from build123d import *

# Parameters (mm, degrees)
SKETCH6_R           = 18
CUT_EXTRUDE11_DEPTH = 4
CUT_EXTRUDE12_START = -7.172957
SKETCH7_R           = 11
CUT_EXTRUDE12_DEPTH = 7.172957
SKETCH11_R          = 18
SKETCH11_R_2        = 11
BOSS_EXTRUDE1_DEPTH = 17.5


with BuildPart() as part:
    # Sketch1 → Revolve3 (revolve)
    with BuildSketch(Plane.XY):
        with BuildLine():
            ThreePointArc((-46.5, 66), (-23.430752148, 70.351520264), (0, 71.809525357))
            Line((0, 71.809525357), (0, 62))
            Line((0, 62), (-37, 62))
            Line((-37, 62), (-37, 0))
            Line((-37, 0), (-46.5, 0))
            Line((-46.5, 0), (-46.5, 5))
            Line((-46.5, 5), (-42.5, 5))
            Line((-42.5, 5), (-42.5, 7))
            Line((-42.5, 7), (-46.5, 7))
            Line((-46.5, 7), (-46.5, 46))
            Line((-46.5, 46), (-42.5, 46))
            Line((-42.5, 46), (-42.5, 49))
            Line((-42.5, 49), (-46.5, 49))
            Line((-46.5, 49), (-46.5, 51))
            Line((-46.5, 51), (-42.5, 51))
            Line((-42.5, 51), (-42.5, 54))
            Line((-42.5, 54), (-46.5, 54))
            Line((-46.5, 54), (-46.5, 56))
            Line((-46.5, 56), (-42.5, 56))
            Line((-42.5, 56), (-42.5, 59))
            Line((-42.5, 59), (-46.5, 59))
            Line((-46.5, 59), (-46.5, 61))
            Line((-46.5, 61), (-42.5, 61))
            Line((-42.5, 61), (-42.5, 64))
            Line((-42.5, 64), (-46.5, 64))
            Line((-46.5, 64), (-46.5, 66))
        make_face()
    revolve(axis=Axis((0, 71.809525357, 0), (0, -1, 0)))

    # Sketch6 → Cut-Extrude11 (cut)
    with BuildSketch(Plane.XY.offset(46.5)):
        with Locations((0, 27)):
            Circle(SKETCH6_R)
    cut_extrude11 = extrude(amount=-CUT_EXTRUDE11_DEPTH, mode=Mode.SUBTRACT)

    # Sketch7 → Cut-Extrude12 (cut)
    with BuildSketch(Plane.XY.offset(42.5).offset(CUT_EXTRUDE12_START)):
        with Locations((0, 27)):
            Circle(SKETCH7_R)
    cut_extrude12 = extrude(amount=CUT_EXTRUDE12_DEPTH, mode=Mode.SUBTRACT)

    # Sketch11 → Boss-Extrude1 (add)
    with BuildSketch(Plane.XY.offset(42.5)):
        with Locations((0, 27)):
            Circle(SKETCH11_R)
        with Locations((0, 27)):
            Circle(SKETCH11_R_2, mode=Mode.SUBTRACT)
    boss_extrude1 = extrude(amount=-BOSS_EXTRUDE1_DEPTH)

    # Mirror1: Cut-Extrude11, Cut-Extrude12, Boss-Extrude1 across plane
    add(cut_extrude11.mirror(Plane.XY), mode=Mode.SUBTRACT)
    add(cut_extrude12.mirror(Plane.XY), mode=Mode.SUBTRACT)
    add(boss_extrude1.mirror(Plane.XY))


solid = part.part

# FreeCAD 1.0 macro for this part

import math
import FreeCAD as App
import Part
import Sketcher
from FreeCAD import Vector
Q = App.Units.Quantity

doc = App.newDocument("Part")
body = doc.addObject("PartDesign::Body", "Body")

# Sketch on XY plane
sketch1 = body.newObject("Sketcher::SketchObject", "Sketch")
sketch1.AttachmentSupport = (doc.getObject("XY_Plane"), [""])
sketch1.MapMode = "FlatFace"
sketch1.addGeometry([
    Part.ArcOfCircle(Part.Circle(Vector(0, -117.190475, 0), Vector(0, 0, 1), 189), math.radians(90), math.radians(104.242815)),  # 0
    Part.LineSegment(Vector(-46.5, 66, 0), Vector(-46.5, 64, 0)),  # 1
    Part.LineSegment(Vector(-46.5, 64, 0), Vector(-42.5, 64, 0)),  # 2
    Part.LineSegment(Vector(-42.5, 64, 0), Vector(-42.5, 61, 0)),  # 3
    Part.LineSegment(Vector(-42.5, 61, 0), Vector(-46.5, 61, 0)),  # 4
    Part.LineSegment(Vector(-46.5, 61, 0), Vector(-46.5, 59, 0)),  # 5
    Part.LineSegment(Vector(-46.5, 59, 0), Vector(-42.5, 59, 0)),  # 6
    Part.LineSegment(Vector(-42.5, 59, 0), Vector(-42.5, 56, 0)),  # 7
    Part.LineSegment(Vector(-42.5, 56, 0), Vector(-46.5, 56, 0)),  # 8
    Part.LineSegment(Vector(-46.5, 56, 0), Vector(-46.5, 54, 0)),  # 9
    Part.LineSegment(Vector(-46.5, 54, 0), Vector(-42.5, 54, 0)),  # 10
    Part.LineSegment(Vector(-42.5, 54, 0), Vector(-42.5, 51, 0)),  # 11
    Part.LineSegment(Vector(-42.5, 51, 0), Vector(-46.5, 51, 0)),  # 12
    Part.LineSegment(Vector(-46.5, 51, 0), Vector(-46.5, 49, 0)),  # 13
    Part.LineSegment(Vector(-46.5, 49, 0), Vector(-42.5, 49, 0)),  # 14
    Part.LineSegment(Vector(-42.5, 49, 0), Vector(-42.5, 46, 0)),  # 15
    Part.LineSegment(Vector(-42.5, 46, 0), Vector(-46.5, 46, 0)),  # 16
    Part.LineSegment(Vector(-46.5, 46, 0), Vector(-46.5, 7, 0)),  # 17
    Part.LineSegment(Vector(-46.5, 7, 0), Vector(-42.5, 7, 0)),  # 18
    Part.LineSegment(Vector(-42.5, 7, 0), Vector(-42.5, 5, 0)),  # 19
    Part.LineSegment(Vector(-42.5, 5, 0), Vector(-46.5, 5, 0)),  # 20
    Part.LineSegment(Vector(-46.5, 5, 0), Vector(-46.5, 0, 0)),  # 21
    Part.LineSegment(Vector(-46.5, 0, 0), Vector(-37, 0, 0)),  # 22
    Part.LineSegment(Vector(-37, 0, 0), Vector(-37, 62, 0)),  # 23
    Part.LineSegment(Vector(-37, 62, 0), Vector(0, 62, 0)),  # 24
    Part.LineSegment(Vector(0, 62, 0), Vector(0, 71.809525, 0)),  # 25
], False)
sketch1.addConstraint([
    Sketcher.Constraint("Coincident", 0, 2, 1, 1),
    Sketcher.Constraint("Coincident", 1, 2, 2, 1),
    Sketcher.Constraint("Coincident", 2, 2, 3, 1),
    Sketcher.Constraint("Coincident", 3, 2, 4, 1),
    Sketcher.Constraint("Coincident", 4, 2, 5, 1),
    Sketcher.Constraint("Coincident", 5, 2, 6, 1),
    Sketcher.Constraint("Coincident", 6, 2, 7, 1),
    Sketcher.Constraint("Coincident", 7, 2, 8, 1),
    Sketcher.Constraint("Coincident", 8, 2, 9, 1),
    Sketcher.Constraint("Coincident", 9, 2, 10, 1),
    Sketcher.Constraint("Coincident", 10, 2, 11, 1),
    Sketcher.Constraint("Coincident", 11, 2, 12, 1),
    Sketcher.Constraint("Coincident", 12, 2, 13, 1),
    Sketcher.Constraint("Coincident", 13, 2, 14, 1),
    Sketcher.Constraint("Coincident", 14, 2, 15, 1),
    Sketcher.Constraint("Coincident", 15, 2, 16, 1),
    Sketcher.Constraint("Coincident", 16, 2, 17, 1),
    Sketcher.Constraint("Coincident", 17, 2, 18, 1),
    Sketcher.Constraint("Coincident", 18, 2, 19, 1),
    Sketcher.Constraint("Coincident", 19, 2, 20, 1),
    Sketcher.Constraint("Coincident", 20, 2, 21, 1),
    Sketcher.Constraint("Coincident", 21, 2, 22, 1),
    Sketcher.Constraint("Coincident", 22, 2, 23, 1),
    Sketcher.Constraint("Coincident", 23, 2, 24, 1),
    Sketcher.Constraint("Coincident", 24, 2, 25, 1),
    Sketcher.Constraint("Coincident", 25, 2, 0, 1),
    Sketcher.Constraint("Vertical", 1),
    Sketcher.Constraint("Horizontal", 2),
    Sketcher.Constraint("Vertical", 3),
    Sketcher.Constraint("Horizontal", 4),
    Sketcher.Constraint("Vertical", 5),
    Sketcher.Constraint("Horizontal", 6),
    Sketcher.Constraint("Vertical", 7),
    Sketcher.Constraint("Horizontal", 8),
    Sketcher.Constraint("Vertical", 9),
    Sketcher.Constraint("Horizontal", 10),
    Sketcher.Constraint("Vertical", 11),
    Sketcher.Constraint("Horizontal", 12),
    Sketcher.Constraint("Vertical", 13),
    Sketcher.Constraint("Horizontal", 14),
    Sketcher.Constraint("Vertical", 15),
    Sketcher.Constraint("Horizontal", 16),
    Sketcher.Constraint("Vertical", 17),
    Sketcher.Constraint("Horizontal", 18),
    Sketcher.Constraint("Vertical", 19),
    Sketcher.Constraint("Horizontal", 20),
    Sketcher.Constraint("Vertical", 21),
    Sketcher.Constraint("Horizontal", 22),
    Sketcher.Constraint("Vertical", 23),
    Sketcher.Constraint("Horizontal", 24),
    Sketcher.Constraint("Vertical", 25),
    Sketcher.Constraint("PointOnObject", 0, 3, -2),
    Sketcher.Constraint("PointOnObject", 21, 2, -1),
    Sketcher.Constraint("PointOnObject", 24, 2, -2),
    Sketcher.Constraint("Vertical", 1, 2, 4, 2),
    Sketcher.Constraint("Vertical", 3, 2, 6, 2),
    Sketcher.Constraint("Vertical", 5, 2, 8, 2),
    Sketcher.Constraint("Vertical", 7, 2, 10, 2),
    Sketcher.Constraint("Vertical", 9, 2, 12, 2),
    Sketcher.Constraint("Vertical", 11, 2, 14, 2),
    Sketcher.Constraint("Vertical", 13, 2, 16, 2),
    Sketcher.Constraint("Vertical", 15, 2, 18, 2),
    Sketcher.Constraint("Vertical", 17, 2, 20, 2),
    Sketcher.Constraint("Equal", 1, 5),
    Sketcher.Constraint("Equal", 3, 7),
    Sketcher.Constraint("Equal", 5, 9),
    Sketcher.Constraint("Equal", 7, 11),
    Sketcher.Constraint("Equal", 9, 13),
    Sketcher.Constraint("Equal", 11, 15),
    Sketcher.Constraint("Equal", 13, 19),
    Sketcher.Constraint("Radius", 0, Q("189 mm")),
    Sketcher.Constraint("DistanceX", 2, 1, 2, 2, Q("4 mm")),
    Sketcher.Constraint("DistanceX", 24, 1, 24, 2, Q("37 mm")),
    Sketcher.Constraint("DistanceY", 1, 2, 1, 1, Q("2 mm")),
    Sketcher.Constraint("DistanceY", 3, 2, 3, 1, Q("3 mm")),
    Sketcher.Constraint("DistanceY", 17, 2, 17, 1, Q("39 mm")),
    Sketcher.Constraint("DistanceY", 21, 2, 21, 1, Q("5 mm")),
    Sketcher.Constraint("DistanceY", 23, 1, 23, 2, Q("62 mm")),
    Sketcher.Constraint("DistanceX", 22, 1, 22, 2, Q("9.5 mm")),
])
revolution = body.newObject("PartDesign::Revolution", "Revolution")
revolution.Profile = sketch1
revolution.ReferenceAxis = (sketch1, ["V_Axis"])
revolution.Angle = 360

# Sketch on XY plane
sketch2 = body.newObject("Sketcher::SketchObject", "Sketch001")
sketch2.AttachmentSupport = (doc.getObject("XY_Plane"), [""])
sketch2.MapMode = "FlatFace"
sketch2.AttachmentOffset = App.Placement(Vector(0, 0, 46.5), App.Rotation())
sketch2.addGeometry(Part.Circle(Vector(0, 27, 0), Vector(0, 0, 1), 18), False)
sketch2.addConstraint([
    Sketcher.Constraint("PointOnObject", 0, 3, -2),
    Sketcher.Constraint("Diameter", 0, Q("36 mm")),
    Sketcher.Constraint("DistanceY", -1, 1, 0, 3, Q("27 mm")),
])
pocket1 = body.newObject("PartDesign::Pocket", "Pocket")
pocket1.Profile = sketch2
pocket1.Length = 4

# Sketch on XY plane
sketch3 = body.newObject("Sketcher::SketchObject", "Sketch002")
sketch3.AttachmentSupport = (doc.getObject("XY_Plane"), [""])
sketch3.MapMode = "FlatFace"
sketch3.AttachmentOffset = App.Placement(Vector(0, 0, 35.327043), App.Rotation())
sketch3.addGeometry(Part.Circle(Vector(0, 27, 0), Vector(0, 0, 1), 11), False)
sketch3.addConstraint([
    Sketcher.Constraint("PointOnObject", 0, 3, -2),
    Sketcher.Constraint("Diameter", 0, Q("22 mm")),
    Sketcher.Constraint("DistanceY", -1, 1, 0, 3, Q("27 mm")),
])
pocket2 = body.newObject("PartDesign::Pocket", "Pocket001")
pocket2.Profile = sketch3
pocket2.Length = 7.172957
pocket2.Reversed = True

# Sketch on XY plane
sketch4 = body.newObject("Sketcher::SketchObject", "Sketch003")
sketch4.AttachmentSupport = (doc.getObject("XY_Plane"), [""])
sketch4.MapMode = "FlatFace"
sketch4.AttachmentOffset = App.Placement(Vector(0, 0, 42.5), App.Rotation())
sketch4.addGeometry([
    Part.Circle(Vector(0, 27, 0), Vector(0, 0, 1), 18),
    Part.Circle(Vector(0, 27, 0), Vector(0, 0, 1), 11),
], False)
sketch4.addConstraint([
    Sketcher.Constraint("Coincident", 1, 3, 0, 3),
    Sketcher.Constraint("PointOnObject", 0, 3, -2),
    Sketcher.Constraint("Diameter", 0, Q("36 mm")),
    Sketcher.Constraint("Diameter", 1, Q("22 mm")),
    Sketcher.Constraint("DistanceY", -1, 1, 0, 3, Q("27 mm")),
])
pad1 = body.newObject("PartDesign::Pad", "Pad")
pad1.Profile = sketch4
pad1.Length = 17.5
pad1.Reversed = True
doc.recompute()

mirrored = body.newObject("PartDesign::Mirrored", "Mirrored")
mirrored.Originals = [pocket1, pocket2, pad1]
mirrored.MirrorPlane = (doc.getObject("XY_Plane"), [""])
body.Tip = mirrored

doc.recompute()
